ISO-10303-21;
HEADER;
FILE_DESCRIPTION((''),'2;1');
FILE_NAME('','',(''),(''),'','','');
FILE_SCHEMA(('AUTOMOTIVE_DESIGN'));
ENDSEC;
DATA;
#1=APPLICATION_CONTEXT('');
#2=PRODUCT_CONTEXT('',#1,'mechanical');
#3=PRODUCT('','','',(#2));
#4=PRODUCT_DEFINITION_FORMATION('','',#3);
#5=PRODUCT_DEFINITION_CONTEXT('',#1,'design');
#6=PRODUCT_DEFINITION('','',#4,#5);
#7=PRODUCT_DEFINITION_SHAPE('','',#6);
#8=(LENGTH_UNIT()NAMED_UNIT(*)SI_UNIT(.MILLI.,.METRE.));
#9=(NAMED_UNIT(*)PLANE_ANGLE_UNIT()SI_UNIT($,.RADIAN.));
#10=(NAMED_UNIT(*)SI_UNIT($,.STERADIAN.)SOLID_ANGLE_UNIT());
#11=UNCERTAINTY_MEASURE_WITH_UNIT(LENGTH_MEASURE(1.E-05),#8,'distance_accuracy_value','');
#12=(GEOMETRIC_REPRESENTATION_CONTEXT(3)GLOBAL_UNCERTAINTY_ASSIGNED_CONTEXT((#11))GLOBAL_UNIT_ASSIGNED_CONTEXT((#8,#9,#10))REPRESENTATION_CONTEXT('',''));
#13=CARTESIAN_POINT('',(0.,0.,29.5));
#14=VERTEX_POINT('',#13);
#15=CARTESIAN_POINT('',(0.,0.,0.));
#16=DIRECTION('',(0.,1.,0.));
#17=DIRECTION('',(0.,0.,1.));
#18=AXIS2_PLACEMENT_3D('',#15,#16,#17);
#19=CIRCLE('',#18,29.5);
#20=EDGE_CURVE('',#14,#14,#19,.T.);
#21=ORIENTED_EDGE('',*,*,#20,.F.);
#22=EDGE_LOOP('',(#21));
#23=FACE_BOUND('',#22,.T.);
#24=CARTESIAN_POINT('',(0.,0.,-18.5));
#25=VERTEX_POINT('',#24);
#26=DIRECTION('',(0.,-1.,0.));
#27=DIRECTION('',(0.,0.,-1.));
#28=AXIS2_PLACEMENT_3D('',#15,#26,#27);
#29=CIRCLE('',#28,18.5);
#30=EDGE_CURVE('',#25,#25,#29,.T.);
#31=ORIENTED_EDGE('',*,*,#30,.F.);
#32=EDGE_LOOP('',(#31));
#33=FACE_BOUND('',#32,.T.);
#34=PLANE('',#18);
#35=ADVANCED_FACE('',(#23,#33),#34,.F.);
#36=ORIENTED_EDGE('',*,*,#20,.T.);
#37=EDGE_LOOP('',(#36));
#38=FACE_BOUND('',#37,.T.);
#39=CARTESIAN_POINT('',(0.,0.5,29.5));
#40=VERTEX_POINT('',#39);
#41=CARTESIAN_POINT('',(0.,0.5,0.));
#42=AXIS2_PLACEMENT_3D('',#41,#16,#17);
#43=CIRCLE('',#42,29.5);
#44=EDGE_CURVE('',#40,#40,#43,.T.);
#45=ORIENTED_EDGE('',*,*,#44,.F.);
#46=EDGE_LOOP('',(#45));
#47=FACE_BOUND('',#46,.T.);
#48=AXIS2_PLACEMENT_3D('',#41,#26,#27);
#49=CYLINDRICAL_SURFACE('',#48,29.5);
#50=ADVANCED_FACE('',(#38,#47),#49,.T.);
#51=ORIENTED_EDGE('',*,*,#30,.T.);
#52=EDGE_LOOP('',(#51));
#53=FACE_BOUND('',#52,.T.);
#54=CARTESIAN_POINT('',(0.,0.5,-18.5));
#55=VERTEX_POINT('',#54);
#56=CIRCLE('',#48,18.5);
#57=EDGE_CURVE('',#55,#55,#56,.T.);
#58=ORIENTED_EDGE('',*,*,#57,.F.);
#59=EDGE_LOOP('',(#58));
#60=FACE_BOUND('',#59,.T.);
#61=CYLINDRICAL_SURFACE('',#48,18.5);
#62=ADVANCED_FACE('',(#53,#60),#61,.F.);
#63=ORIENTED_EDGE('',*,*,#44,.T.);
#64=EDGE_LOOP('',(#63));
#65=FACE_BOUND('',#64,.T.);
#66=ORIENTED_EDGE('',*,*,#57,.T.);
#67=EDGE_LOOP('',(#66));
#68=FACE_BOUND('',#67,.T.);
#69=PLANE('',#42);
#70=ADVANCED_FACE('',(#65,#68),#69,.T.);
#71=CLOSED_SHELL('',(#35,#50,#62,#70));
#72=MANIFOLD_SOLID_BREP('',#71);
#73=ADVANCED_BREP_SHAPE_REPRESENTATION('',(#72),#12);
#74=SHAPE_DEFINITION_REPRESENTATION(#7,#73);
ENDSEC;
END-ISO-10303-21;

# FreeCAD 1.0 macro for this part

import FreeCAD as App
import Part
import Sketcher

V = App.Vector

doc = App.newDocument("Part")
body = doc.addObject("PartDesign::Body", "Body")

sketch1 = body.newObject("Sketcher::SketchObject", "Sketch")
sketch1.AttachmentSupport = (doc.getObject("XZ_Plane"), [""])
sketch1.MapMode = "FlatFace"
sketch1.addGeometry(Part.Circle(V(0, 0, 0), V(0, 0, 1), 30), False)
sketch1.addConstraint([
    Sketcher.Constraint("Coincident", 0, 3, -1, 1),
    Sketcher.Constraint("Diameter", 0, 59.0),
])
pad1 = body.newObject("PartDesign::Pad", "Pad")
pad1.Profile = sketch1
pad1.Length = 0.5
pad1.Reversed = True

sketch2 = body.newObject("Sketcher::SketchObject", "Sketch001")
sketch2.AttachmentSupport = (doc.getObject("XZ_Plane"), [""])
sketch2.MapMode = "FlatFace"
sketch2.addGeometry(Part.Circle(V(0, 0, 0), V(0, 0, 1), 18), False)
sketch2.addConstraint([
    Sketcher.Constraint("Coincident", 0, 3, -1, 1),
    Sketcher.Constraint("Diameter", 0, 37.0),
])
pocket1 = body.newObject("PartDesign::Pocket", "Pocket")
pocket1.Profile = sketch2
pocket1.Type = "ThroughAll"

doc.recompute()
